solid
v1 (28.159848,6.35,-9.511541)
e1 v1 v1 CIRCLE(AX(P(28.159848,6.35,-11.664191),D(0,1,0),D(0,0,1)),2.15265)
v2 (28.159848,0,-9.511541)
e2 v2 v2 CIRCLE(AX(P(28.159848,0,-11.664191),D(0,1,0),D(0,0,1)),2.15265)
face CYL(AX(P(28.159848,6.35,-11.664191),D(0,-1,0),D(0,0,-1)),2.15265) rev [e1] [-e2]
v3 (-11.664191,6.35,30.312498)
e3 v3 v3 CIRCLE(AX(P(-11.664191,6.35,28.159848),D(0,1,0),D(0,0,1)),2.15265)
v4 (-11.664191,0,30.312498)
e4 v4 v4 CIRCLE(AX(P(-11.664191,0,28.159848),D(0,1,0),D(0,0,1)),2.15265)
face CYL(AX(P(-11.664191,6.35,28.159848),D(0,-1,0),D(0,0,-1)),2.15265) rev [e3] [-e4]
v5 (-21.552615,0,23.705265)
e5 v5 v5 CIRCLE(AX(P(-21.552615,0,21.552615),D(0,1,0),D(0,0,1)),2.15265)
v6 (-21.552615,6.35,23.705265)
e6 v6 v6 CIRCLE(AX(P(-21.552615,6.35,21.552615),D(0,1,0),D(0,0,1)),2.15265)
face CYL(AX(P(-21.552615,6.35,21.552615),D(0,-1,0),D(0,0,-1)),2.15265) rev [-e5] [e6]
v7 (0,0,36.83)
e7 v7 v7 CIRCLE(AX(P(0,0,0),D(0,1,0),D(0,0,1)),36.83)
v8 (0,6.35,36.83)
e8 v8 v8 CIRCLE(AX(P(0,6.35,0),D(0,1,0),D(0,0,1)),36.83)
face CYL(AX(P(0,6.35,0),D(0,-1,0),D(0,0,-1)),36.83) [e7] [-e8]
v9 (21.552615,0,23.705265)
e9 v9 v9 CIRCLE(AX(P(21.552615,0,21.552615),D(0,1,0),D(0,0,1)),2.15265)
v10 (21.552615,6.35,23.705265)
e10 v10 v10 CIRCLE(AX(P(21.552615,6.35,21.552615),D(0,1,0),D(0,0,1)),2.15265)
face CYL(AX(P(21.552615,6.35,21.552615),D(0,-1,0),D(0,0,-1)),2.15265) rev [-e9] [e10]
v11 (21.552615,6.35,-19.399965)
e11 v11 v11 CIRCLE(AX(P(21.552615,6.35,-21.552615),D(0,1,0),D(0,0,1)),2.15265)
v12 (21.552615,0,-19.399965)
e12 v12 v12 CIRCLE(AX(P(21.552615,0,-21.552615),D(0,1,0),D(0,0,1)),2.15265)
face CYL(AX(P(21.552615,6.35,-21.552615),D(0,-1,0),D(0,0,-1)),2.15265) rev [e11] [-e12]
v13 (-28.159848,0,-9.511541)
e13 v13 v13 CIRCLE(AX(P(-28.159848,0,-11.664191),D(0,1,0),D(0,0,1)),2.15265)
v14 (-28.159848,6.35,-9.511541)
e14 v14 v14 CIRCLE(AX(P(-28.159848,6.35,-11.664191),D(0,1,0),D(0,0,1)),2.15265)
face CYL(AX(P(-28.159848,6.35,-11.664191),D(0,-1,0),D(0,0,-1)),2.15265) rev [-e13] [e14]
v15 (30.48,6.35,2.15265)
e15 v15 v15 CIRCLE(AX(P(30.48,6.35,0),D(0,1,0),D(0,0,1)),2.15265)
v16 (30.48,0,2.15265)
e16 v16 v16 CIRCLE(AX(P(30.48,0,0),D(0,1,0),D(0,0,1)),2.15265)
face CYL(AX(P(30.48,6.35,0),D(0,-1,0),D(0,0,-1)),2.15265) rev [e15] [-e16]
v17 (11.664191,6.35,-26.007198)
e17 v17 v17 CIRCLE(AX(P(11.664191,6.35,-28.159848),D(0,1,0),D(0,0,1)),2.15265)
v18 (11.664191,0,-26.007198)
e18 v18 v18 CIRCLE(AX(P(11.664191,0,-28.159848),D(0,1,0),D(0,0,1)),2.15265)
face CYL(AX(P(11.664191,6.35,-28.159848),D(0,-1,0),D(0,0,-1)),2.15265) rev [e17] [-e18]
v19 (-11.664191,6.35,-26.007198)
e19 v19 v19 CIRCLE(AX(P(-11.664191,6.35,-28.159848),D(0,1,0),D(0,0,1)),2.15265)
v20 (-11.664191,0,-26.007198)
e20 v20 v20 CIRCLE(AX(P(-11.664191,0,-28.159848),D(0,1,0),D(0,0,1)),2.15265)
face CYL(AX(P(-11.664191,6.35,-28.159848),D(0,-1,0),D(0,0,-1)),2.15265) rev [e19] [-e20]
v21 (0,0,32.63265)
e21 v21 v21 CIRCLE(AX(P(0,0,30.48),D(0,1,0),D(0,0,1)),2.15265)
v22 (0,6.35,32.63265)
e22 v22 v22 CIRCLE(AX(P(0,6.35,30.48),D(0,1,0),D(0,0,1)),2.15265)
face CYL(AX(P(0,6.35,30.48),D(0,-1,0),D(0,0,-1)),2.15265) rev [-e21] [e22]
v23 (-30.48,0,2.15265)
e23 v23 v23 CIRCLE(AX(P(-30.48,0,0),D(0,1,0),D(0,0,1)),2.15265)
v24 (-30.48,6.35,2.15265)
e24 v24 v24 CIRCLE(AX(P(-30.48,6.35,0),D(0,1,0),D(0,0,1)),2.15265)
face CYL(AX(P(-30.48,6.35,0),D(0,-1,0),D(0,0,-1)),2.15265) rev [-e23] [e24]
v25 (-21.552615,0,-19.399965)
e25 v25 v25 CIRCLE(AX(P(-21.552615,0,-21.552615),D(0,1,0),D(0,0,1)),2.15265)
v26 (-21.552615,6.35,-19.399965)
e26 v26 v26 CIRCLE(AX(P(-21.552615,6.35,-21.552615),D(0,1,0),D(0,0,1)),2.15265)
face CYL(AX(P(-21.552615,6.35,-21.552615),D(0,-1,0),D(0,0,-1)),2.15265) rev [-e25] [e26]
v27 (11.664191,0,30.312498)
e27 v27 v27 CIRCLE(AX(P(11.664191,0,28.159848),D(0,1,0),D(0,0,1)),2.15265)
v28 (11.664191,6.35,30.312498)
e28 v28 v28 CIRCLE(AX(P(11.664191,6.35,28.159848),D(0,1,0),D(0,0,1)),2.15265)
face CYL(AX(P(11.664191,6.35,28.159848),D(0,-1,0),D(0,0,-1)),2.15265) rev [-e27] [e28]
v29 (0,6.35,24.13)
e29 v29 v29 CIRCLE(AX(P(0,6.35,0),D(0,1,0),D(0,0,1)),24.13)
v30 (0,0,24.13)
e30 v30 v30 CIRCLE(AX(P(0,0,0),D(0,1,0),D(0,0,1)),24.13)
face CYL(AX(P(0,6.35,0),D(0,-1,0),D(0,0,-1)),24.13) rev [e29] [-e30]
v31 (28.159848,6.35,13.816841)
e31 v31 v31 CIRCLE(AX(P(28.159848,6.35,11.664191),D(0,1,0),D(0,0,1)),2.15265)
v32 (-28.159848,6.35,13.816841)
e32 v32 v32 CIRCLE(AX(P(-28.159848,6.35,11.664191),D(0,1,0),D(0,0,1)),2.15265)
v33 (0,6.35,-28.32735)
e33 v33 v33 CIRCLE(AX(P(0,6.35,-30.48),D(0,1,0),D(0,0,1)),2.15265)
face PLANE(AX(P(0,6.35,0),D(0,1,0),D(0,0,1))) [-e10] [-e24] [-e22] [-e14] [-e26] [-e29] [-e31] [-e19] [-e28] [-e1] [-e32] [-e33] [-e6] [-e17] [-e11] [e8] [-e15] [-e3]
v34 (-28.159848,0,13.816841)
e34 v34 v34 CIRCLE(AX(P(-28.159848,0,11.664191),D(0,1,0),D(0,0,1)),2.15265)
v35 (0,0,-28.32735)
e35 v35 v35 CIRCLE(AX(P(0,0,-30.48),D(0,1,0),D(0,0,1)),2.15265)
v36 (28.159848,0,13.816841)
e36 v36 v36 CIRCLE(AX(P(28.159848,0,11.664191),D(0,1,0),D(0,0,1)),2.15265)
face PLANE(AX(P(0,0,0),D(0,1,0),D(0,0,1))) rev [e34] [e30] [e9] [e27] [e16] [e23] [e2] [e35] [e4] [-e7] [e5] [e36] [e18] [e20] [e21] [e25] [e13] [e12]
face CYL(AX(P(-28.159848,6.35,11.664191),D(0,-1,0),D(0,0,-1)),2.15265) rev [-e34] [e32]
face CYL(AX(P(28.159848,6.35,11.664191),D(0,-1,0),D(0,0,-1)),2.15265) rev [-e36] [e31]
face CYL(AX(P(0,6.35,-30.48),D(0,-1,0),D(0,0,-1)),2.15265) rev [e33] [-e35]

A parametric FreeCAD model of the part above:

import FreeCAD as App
import Part
import Sketcher
Q = App.Units.Quantity

doc = App.newDocument("Part")
body = doc.addObject("PartDesign::Body", "Body")

# Sketch on XZ plane
sketch1 = doc.addObject("Sketcher::SketchObject", "Sketch")
body.addObject(sketch1)
sketch1.AttachmentSupport = (doc.XZ_Plane, [""])
sketch1.MapMode = "FlatFace"
sketch1.addGeometry([
    Part.Circle(App.Vector(0, 0, 0), App.Vector(0, 0, 1), 36.8),  # 0
    Part.Circle(App.Vector(-21.6, 21.6, 0), App.Vector(0, 0, 1), 2.2),  # 1
    Part.Circle(App.Vector(-11.7, 28.2, 0), App.Vector(0, 0, 1), 2.2),  # 2
    Part.Circle(App.Vector(-28.2, 11.7, 0), App.Vector(0, 0, 1), 2.2),  # 3
    Part.Circle(App.Vector(0, 30.5, 0), App.Vector(0, 0, 1), 2.2),  # 4
    Part.Circle(App.Vector(11.7, 28.2, 0), App.Vector(0, 0, 1), 2.2),  # 5
    Part.Circle(App.Vector(21.6, 21.6, 0), App.Vector(0, 0, 1), 2.2),  # 6
    Part.Circle(App.Vector(28.2, 11.7, 0), App.Vector(0, 0, 1), 2.2),  # 7
    Part.Circle(App.Vector(-30.5, 0, 0), App.Vector(0, 0, 1), 2.2),  # 8
    Part.Circle(App.Vector(-28.2, -11.7, 0), App.Vector(0, 0, 1), 2.2),  # 9
    Part.Circle(App.Vector(-21.6, -21.6, 0), App.Vector(0, 0, 1), 2.2),  # 10
    Part.Circle(App.Vector(-11.7, -28.2, 0), App.Vector(0, 0, 1), 2.2),  # 11
    Part.Circle(App.Vector(0, 0, 0), App.Vector(0, 0, 1), 24.1),  # 12
    Part.Circle(App.Vector(30.5, 0, 0), App.Vector(0, 0, 1), 2.2),  # 13
    Part.Circle(App.Vector(28.2, -11.7, 0), App.Vector(0, 0, 1), 2.2),  # 14
    Part.Circle(App.Vector(0, -30.5, 0), App.Vector(0, 0, 1), 2.2),  # 15
    Part.Circle(App.Vector(11.7, -28.2, 0), App.Vector(0, 0, 1), 2.2),  # 16
    Part.Circle(App.Vector(21.6, -21.6, 0), App.Vector(0, 0, 1), 2.2),  # 17
], False)
sketch1.addConstraint([
    Sketcher.Constraint("Coincident", 0, 3, -1, 1),
    Sketcher.Constraint("Coincident", 12, 3, -1, 1),
    Sketcher.Constraint("Equal", 1, 2),
    Sketcher.Constraint("Equal", 2, 3),
    Sketcher.Constraint("Equal", 3, 4),
    Sketcher.Constraint("Equal", 4, 5),
    Sketcher.Constraint("Equal", 5, 6),
    Sketcher.Constraint("Equal", 6, 7),
    Sketcher.Constraint("Equal", 7, 8),
    Sketcher.Constraint("Equal", 8, 9),
    Sketcher.Constraint("Equal", 9, 10),
    Sketcher.Constraint("Equal", 10, 11),
    Sketcher.Constraint("Equal", 11, 13),
    Sketcher.Constraint("Equal", 13, 14),
    Sketcher.Constraint("Equal", 14, 15),
    Sketcher.Constraint("Equal", 15, 16),
    Sketcher.Constraint("Equal", 16, 17),
    Sketcher.Constraint("Symmetric", 7, 3, 9, 3, -1, 1),
    Sketcher.Constraint("Symmetric", 6, 3, 10, 3, -1, 1),
    Sketcher.Constraint("Symmetric", 5, 3, 11, 3, -1, 1),
    Sketcher.Constraint("Symmetric", 8, 3, 13, 3, -1, 1),
    Sketcher.Constraint("Symmetric", 3, 3, 14, 3, -1, 1),
    Sketcher.Constraint("Symmetric", 4, 3, 15, 3, -1, 1),
    Sketcher.Constraint("Symmetric", 2, 3, 16, 3, -1, 1),
    Sketcher.Constraint("Symmetric", 1, 3, 17, 3, -1, 1),
    Sketcher.Constraint("Symmetric", 2, 3, 5, 3, -2),
    Sketcher.Constraint("Symmetric", 1, 3, 6, 3, -2),
    Sketcher.Constraint("Symmetric", 3, 3, 7, 3, -2),
    Sketcher.Constraint("PointOnObject", 4, 3, -2),
    Sketcher.Constraint("PointOnObject", 8, 3, -1),
    Sketcher.Constraint("Diameter", 0, Q("2.9 in")),
    Sketcher.Constraint("Diameter", 12, Q("1.9 in")),
    Sketcher.Constraint("Diameter", 1, Q("0.1695 in")),
    Sketcher.Constraint("DistanceY", -1, 1, 4, 3, Q("1.2 in")),
    Sketcher.Constraint("DistanceX", 8, 3, -1, 1, Q("1.2 in")),
    Sketcher.Constraint("DistanceX", 2, 3, -1, 1, Q("11.664191 mm")),
    Sketcher.Constraint("DistanceY", -1, 1, 2, 3, Q("28.159848 mm")),
    Sketcher.Constraint("DistanceX", 3, 3, -1, 1, Q("28.159848 mm")),
    Sketcher.Constraint("DistanceY", -1, 1, 3, 3, Q("11.664191 mm")),
    Sketcher.Constraint("DistanceX", 1, 3, 6, 3, Q("43.105229 mm")),
    Sketcher.Constraint("DistanceY", 10, 3, 1, 3, Q("43.105229 mm")),
])
pad1 = doc.addObject("PartDesign::Pad", "Pad")
body.addObject(pad1)
pad1.Profile = sketch1
pad1.Length = Q("0.25 in")
pad1.Reversed = True

doc.recompute()
